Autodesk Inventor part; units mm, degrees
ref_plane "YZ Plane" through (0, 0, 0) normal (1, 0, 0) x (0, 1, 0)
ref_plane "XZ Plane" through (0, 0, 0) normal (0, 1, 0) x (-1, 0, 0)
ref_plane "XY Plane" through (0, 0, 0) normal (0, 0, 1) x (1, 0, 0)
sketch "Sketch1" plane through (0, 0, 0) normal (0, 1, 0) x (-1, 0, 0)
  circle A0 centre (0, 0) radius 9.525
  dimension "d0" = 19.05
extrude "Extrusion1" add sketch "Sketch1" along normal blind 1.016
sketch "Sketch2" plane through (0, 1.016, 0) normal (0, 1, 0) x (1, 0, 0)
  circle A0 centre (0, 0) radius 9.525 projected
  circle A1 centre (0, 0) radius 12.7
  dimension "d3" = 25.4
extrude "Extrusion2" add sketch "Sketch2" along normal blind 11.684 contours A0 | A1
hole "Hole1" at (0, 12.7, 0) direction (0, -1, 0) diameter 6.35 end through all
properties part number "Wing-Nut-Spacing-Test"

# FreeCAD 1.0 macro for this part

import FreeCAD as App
import Part
import Sketcher

V = App.Vector
Q = App.Units.Quantity

doc = App.newDocument("Part")
body = doc.addObject("PartDesign::Body", "Body")

# Sketch on XZ plane
sketch1 = body.newObject("Sketcher::SketchObject", "Sketch")
sketch1.AttachmentSupport = (doc.getObject("XZ_Plane"), [""])
sketch1.MapMode = "FlatFace"
sketch1.addGeometry(Part.Circle(V(0, 0, 0), V(0, 0, 1), 10), False)
sketch1.addConstraint(Sketcher.Constraint("Coincident", 0, 3, -1, 1))
sketch1.addConstraint(Sketcher.Constraint("Diameter", 0, Q("0.75 in")))
pad1 = body.newObject("PartDesign::Pad", "Pad")
pad1.Profile = sketch1
pad1.Length = Q("0.04 in")
pad1.Reversed = True

# Sketch on XZ plane
sketch2 = body.newObject("Sketcher::SketchObject", "Sketch001")
sketch2.AttachmentSupport = (doc.getObject("XZ_Plane"), [""])
sketch2.MapMode = "FlatFace"
sketch2.AttachmentOffset = App.Placement(V(0, 0, -0.04 * 25.4), App.Rotation())
sketch2.addGeometry(Part.Circle(V(0, 0, 0), V(0, 0, 1), 13), False)
sketch2.addConstraint(Sketcher.Constraint("Coincident", 0, 3, -1, 1))
sketch2.addConstraint(Sketcher.Constraint("Diameter", 0, Q("1 in")))
pad2 = body.newObject("PartDesign::Pad", "Pad001")
pad2.Profile = sketch2
pad2.Length = Q("0.46 in")
pad2.Reversed = True

# Sketch on XZ plane
sketch3 = body.newObject("Sketcher::SketchObject", "Sketch002")
sketch3.AttachmentSupport = (doc.getObject("XZ_Plane"), [""])
sketch3.MapMode = "FlatFace"
sketch3.AttachmentOffset = App.Placement(V(0, 0, -0.5 * 25.4), App.Rotation())
sketch3.addGeometry(Part.Circle(V(0, 0, 0), V(0, 0, 1), 3.2), False)
sketch3.addConstraint(Sketcher.Constraint("Coincident", 0, 3, -1, 1))
sketch3.addConstraint(Sketcher.Constraint("Diameter", 0, Q("0.25 in")))
doc.recompute()
hole = body.newObject("PartDesign::Hole", "Hole")
hole.Profile = sketch3
hole.ThreadType = "None"
hole.Diameter = Q("0.25 in")
hole.DepthType = "ThroughAll"
hole.Reversed = True

doc.recompute()
